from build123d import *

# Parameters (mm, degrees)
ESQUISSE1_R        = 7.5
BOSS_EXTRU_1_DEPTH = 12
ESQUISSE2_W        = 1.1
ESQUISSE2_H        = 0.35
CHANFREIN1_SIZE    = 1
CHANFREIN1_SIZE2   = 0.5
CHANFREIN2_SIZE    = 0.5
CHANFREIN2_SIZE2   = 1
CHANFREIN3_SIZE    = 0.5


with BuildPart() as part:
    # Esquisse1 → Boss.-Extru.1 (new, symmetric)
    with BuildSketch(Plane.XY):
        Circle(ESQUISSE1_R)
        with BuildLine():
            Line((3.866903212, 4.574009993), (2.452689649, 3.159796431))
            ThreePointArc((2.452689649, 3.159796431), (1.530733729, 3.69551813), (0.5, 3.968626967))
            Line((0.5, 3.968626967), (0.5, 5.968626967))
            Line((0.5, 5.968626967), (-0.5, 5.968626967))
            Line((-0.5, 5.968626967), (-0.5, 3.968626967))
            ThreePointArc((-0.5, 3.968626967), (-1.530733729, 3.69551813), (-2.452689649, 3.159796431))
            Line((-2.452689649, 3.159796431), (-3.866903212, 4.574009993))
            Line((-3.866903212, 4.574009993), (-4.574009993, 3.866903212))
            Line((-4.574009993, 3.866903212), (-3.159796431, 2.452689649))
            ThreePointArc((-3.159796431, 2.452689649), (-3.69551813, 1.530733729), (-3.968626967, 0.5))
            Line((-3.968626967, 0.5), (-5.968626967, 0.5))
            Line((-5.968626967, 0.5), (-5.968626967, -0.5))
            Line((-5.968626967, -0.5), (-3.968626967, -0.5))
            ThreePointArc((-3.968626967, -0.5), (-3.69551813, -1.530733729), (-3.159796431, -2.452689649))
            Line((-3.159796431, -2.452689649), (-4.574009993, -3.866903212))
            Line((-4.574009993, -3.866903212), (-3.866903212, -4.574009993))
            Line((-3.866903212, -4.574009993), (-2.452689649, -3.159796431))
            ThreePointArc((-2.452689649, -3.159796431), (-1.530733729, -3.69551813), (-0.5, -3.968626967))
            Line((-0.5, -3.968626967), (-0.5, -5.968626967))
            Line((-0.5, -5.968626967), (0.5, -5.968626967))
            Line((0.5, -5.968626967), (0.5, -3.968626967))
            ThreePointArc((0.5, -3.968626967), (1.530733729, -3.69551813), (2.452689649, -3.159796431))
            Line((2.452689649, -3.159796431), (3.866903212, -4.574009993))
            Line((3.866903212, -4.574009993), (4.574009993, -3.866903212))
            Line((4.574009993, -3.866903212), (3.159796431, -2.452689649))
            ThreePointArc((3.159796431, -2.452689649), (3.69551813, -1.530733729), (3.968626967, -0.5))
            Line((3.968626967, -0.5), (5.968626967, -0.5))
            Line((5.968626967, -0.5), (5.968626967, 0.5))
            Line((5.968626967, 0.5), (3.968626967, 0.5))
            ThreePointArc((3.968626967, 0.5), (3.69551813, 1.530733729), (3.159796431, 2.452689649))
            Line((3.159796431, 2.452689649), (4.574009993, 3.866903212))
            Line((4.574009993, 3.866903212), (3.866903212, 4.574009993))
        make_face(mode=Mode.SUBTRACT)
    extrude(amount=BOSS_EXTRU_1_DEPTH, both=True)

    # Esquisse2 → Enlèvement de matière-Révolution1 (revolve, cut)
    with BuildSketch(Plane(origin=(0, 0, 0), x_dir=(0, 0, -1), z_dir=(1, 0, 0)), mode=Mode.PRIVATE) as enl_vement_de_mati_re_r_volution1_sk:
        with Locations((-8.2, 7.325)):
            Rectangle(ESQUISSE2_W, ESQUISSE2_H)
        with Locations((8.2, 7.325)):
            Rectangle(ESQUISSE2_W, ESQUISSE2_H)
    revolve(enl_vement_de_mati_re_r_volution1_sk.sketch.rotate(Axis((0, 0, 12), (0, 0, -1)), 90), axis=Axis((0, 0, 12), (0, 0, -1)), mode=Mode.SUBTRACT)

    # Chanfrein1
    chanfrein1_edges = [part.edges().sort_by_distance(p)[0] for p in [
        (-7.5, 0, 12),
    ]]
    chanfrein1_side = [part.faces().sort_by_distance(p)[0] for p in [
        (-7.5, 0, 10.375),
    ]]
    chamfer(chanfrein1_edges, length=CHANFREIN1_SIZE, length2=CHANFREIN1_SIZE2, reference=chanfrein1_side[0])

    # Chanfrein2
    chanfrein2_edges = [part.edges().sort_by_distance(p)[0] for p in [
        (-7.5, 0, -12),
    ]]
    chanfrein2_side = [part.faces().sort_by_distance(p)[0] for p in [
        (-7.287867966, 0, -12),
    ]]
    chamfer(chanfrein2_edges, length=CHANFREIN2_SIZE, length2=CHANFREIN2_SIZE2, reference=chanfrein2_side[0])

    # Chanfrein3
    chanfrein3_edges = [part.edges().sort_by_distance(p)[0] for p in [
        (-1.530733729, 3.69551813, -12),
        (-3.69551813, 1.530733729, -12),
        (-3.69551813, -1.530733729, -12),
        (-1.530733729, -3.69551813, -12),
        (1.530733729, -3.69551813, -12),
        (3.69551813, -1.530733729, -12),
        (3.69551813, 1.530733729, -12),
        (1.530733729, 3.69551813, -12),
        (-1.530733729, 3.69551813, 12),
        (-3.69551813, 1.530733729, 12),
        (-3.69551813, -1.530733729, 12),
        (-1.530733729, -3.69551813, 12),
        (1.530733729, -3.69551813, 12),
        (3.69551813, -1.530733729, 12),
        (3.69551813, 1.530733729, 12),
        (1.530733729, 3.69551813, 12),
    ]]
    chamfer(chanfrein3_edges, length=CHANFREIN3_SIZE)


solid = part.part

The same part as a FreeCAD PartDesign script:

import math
import FreeCAD as App
import Part
import Sketcher

V = App.Vector


def edges_at(feature, points):
    """Names of the edges that pass closest to the given points."""
    edges = feature.Shape.Edges
    near = lambda p: min(range(len(edges)), key=lambda i: edges[i].distToShape(Part.Vertex(*p))[0])
    return sorted({f"Edge{near(p) + 1}" for p in points})


def add_polygon(sketch, points):
    """Adds a closed chain of lines whose ends are joined by coincident constraints."""
    first, n = sketch.GeometryCount, len(points)
    for a, b in zip(points, points[1:] + points[:1]):
        sketch.addGeometry(Part.LineSegment(App.Vector(*a, 0), App.Vector(*b, 0)), False)
    for i in range(n):
        sketch.addConstraint(Sketcher.Constraint("Coincident", first + i, 2, first + (i + 1) % n, 1))

doc = App.newDocument("Part")
body = doc.addObject("PartDesign::Body", "Body")

# Sketch on XY plane
sketch1 = body.newObject("Sketcher::SketchObject", "Sketch")
sketch1.AttachmentSupport = (doc.getObject("XY_Plane"), [""])
sketch1.MapMode = "FlatFace"
sketch1.addGeometry([
    Part.Circle(V(0, 0, 0), V(0, 0, 1), 7.5),  # 0
    Part.LineSegment(V(2.5, 3.2, 0), V(3.9, 4.6, 0)),  # 1
    Part.LineSegment(V(3.9, 4.6, 0), V(4.6, 3.9, 0)),  # 2
    Part.LineSegment(V(4.6, 3.9, 0), V(3.2, 2.5, 0)),  # 3
    Part.ArcOfCircle(Part.Circle(V(0, 0, 0), V(0, 0, 1), 4), math.radians(7), math.radians(38)),  # 4
    Part.LineSegment(V(4, 0.5, 0), V(6, 0.5, 0)),  # 5
    Part.LineSegment(V(6, 0.5, 0), V(6, -0.5, 0)),  # 6
    Part.LineSegment(V(6, -0.5, 0), V(4, -0.5, 0)),  # 7
    Part.ArcOfCircle(Part.Circle(V(0, 0, 0), V(0, 0, 1), 4), math.radians(-38), math.radians(-7)),  # 8
    Part.LineSegment(V(3.2, -2.5, 0), V(4.6, -3.9, 0)),  # 9
    Part.LineSegment(V(4.6, -3.9, 0), V(3.9, -4.6, 0)),  # 10
    Part.LineSegment(V(3.9, -4.6, 0), V(2.5, -3.2, 0)),  # 11
    Part.ArcOfCircle(Part.Circle(V(0, 0, 0), V(0, 0, 1), 4), math.radians(-83), math.radians(-52)),  # 12
    Part.LineSegment(V(0.5, -4, 0), V(0.5, -6, 0)),  # 13
    Part.LineSegment(V(0.5, -6, 0), V(-0.5, -6, 0)),  # 14
    Part.LineSegment(V(-0.5, -6, 0), V(-0.5, -4, 0)),  # 15
    Part.ArcOfCircle(Part.Circle(V(0, 0, 0), V(0, 0, 1), 4), math.radians(-128), math.radians(-97)),  # 16
    Part.LineSegment(V(-2.5, -3.2, 0), V(-3.9, -4.6, 0)),  # 17
    Part.LineSegment(V(-3.9, -4.6, 0), V(-4.6, -3.9, 0)),  # 18
    Part.LineSegment(V(-4.6, -3.9, 0), V(-3.2, -2.5, 0)),  # 19
    Part.ArcOfCircle(Part.Circle(V(0, 0, 0), V(0, 0, 1), 4), math.radians(-173), math.radians(-142)),  # 20
    Part.LineSegment(V(-4, -0.5, 0), V(-6, -0.5, 0)),  # 21
    Part.LineSegment(V(-6, -0.5, 0), V(-6, 0.5, 0)),  # 22
    Part.LineSegment(V(-6, 0.5, 0), V(-4, 0.5, 0)),  # 23
    Part.ArcOfCircle(Part.Circle(V(0, 0, 0), V(0, 0, 1), 4), math.radians(142), math.radians(173)),  # 24
    Part.LineSegment(V(-3.2, 2.5, 0), V(-4.6, 3.9, 0)),  # 25
    Part.LineSegment(V(-4.6, 3.9, 0), V(-3.9, 4.6, 0)),  # 26
    Part.LineSegment(V(-3.9, 4.6, 0), V(-2.5, 3.2, 0)),  # 27
    Part.ArcOfCircle(Part.Circle(V(0, 0, 0), V(0, 0, 1), 4), math.radians(97), math.radians(128)),  # 28
    Part.LineSegment(V(-0.5, 4, 0), V(-0.5, 6, 0)),  # 29
    Part.LineSegment(V(-0.5, 6, 0), V(0.5, 6, 0)),  # 30
    Part.LineSegment(V(0.5, 6, 0), V(0.5, 4, 0)),  # 31
    Part.ArcOfCircle(Part.Circle(V(0, 0, 0), V(0, 0, 1), 4), math.radians(52), math.radians(83)),  # 32
], False)
sketch1.addConstraint([
    Sketcher.Constraint("Coincident", 1, 2, 2, 1),
    Sketcher.Constraint("Coincident", 2, 2, 3, 1),
    Sketcher.Constraint("Coincident", 3, 2, 4, 2),
    Sketcher.Constraint("Coincident", 4, 1, 5, 1),
    Sketcher.Constraint("Coincident", 5, 2, 6, 1),
    Sketcher.Constraint("Coincident", 6, 2, 7, 1),
    Sketcher.Constraint("Coincident", 7, 2, 8, 2),
    Sketcher.Constraint("Coincident", 8, 1, 9, 1),
    Sketcher.Constraint("Coincident", 9, 2, 10, 1),
    Sketcher.Constraint("Coincident", 10, 2, 11, 1),
    Sketcher.Constraint("Coincident", 11, 2, 12, 2),
    Sketcher.Constraint("Coincident", 12, 1, 13, 1),
    Sketcher.Constraint("Coincident", 13, 2, 14, 1),
    Sketcher.Constraint("Coincident", 14, 2, 15, 1),
    Sketcher.Constraint("Coincident", 15, 2, 16, 2),
    Sketcher.Constraint("Coincident", 16, 1, 17, 1),
    Sketcher.Constraint("Coincident", 17, 2, 18, 1),
    Sketcher.Constraint("Coincident", 18, 2, 19, 1),
    Sketcher.Constraint("Coincident", 19, 2, 20, 2),
    Sketcher.Constraint("Coincident", 20, 1, 21, 1),
    Sketcher.Constraint("Coincident", 21, 2, 22, 1),
    Sketcher.Constraint("Coincident", 22, 2, 23, 1),
    Sketcher.Constraint("Coincident", 23, 2, 24, 2),
    Sketcher.Constraint("Coincident", 24, 1, 25, 1),
    Sketcher.Constraint("Coincident", 25, 2, 26, 1),
    Sketcher.Constraint("Coincident", 26, 2, 27, 1),
    Sketcher.Constraint("Coincident", 27, 2, 28, 2),
    Sketcher.Constraint("Coincident", 28, 1, 29, 1),
    Sketcher.Constraint("Coincident", 29, 2, 30, 1),
    Sketcher.Constraint("Coincident", 30, 2, 31, 1),
    Sketcher.Constraint("Coincident", 31, 2, 32, 2),
    Sketcher.Constraint("Coincident", 32, 1, 1, 1),
    Sketcher.Constraint("Horizontal", 5),
    Sketcher.Constraint("Vertical", 6),
    Sketcher.Constraint("Horizontal", 7),
    Sketcher.Constraint("Vertical", 13),
    Sketcher.Constraint("Horizontal", 14),
    Sketcher.Constraint("Vertical", 15),
    Sketcher.Constraint("Horizontal", 21),
    Sketcher.Constraint("Vertical", 22),
    Sketcher.Constraint("Horizontal", 23),
    Sketcher.Constraint("Vertical", 29),
    Sketcher.Constraint("Horizontal", 30),
    Sketcher.Constraint("Vertical", 31),
    Sketcher.Constraint("Coincident", 0, 3, -1, 1),
    Sketcher.Constraint("Coincident", 4, 3, -1, 1),
    Sketcher.Constraint("Coincident", 8, 3, -1, 1),
    Sketcher.Constraint("Coincident", 12, 3, -1, 1),
    Sketcher.Constraint("Coincident", 16, 3, -1, 1),
    Sketcher.Constraint("Coincident", 20, 3, -1, 1),
    Sketcher.Constraint("Coincident", 24, 3, -1, 1),
    Sketcher.Constraint("Coincident", 28, 3, -1, 1),
    Sketcher.Constraint("Coincident", 32, 3, -1, 1),
    Sketcher.Constraint("Equal", 4, 8),
    Sketcher.Constraint("Equal", 8, 12),
    Sketcher.Constraint("Equal", 12, 16),
    Sketcher.Constraint("Equal", 16, 20),
    Sketcher.Constraint("Equal", 20, 24),
    Sketcher.Constraint("Equal", 24, 28),
    Sketcher.Constraint("Equal", 28, 32),
    Sketcher.Constraint("Symmetric", 1, 2, 17, 2, -1, 1),
    Sketcher.Constraint("Symmetric", 2, 2, 18, 2, -1, 1),
    Sketcher.Constraint("Symmetric", 5, 2, 21, 2, -1, 1),
    Sketcher.Constraint("Symmetric", 9, 2, 25, 2, -1, 1),
    Sketcher.Constraint("Symmetric", 10, 2, 26, 2, -1, 1),
    Sketcher.Constraint("Symmetric", 13, 2, 29, 2, -1, 1),
    Sketcher.Constraint("Symmetric", 10, 2, 17, 2, -2),
    Sketcher.Constraint("Symmetric", 9, 2, 18, 2, -2),
    Sketcher.Constraint("Perpendicular", 1, 2),
    Sketcher.Constraint("Perpendicular", 2, 3),
    Sketcher.Constraint("Perpendicular", 3, 9),
    Sketcher.Constraint("Perpendicular", 9, 10),
    Sketcher.Constraint("Perpendicular", 10, 11),
    Sketcher.Constraint("Perpendicular", 11, 17),
    Sketcher.Constraint("Perpendicular", 18, 19),
    Sketcher.Constraint("Perpendicular", 19, 25),
    Sketcher.Constraint("Perpendicular", 26, 27),
    Sketcher.Constraint("Horizontal", 12, 1, 15, 2),
    Sketcher.Constraint("Horizontal", 7, 2, 20, 1),
    Sketcher.Constraint("Horizontal", 5, 2, 22, 2),
    Sketcher.Constraint("Horizontal", 28, 1, 31, 2),
    Sketcher.Constraint("Equal", 30, 6),
    Sketcher.Constraint("Equal", 23, 13),
    Sketcher.Constraint("Equal", 1, 3),
    Sketcher.Constraint("Diameter", 0, 15.0),
    Sketcher.Constraint("Radius", 4, 4.0),
    Sketcher.Constraint("DistanceX", 5, 1, 5, 2, 2.0),
    Sketcher.Constraint("DistanceX", 14, 2, 14, 1, 1.0),
    Sketcher.Constraint("Distance", 1, 2.0),
    Sketcher.Constraint("Distance", 2, 1.0),
])
pad1 = body.newObject("PartDesign::Pad", "Pad")
pad1.Profile = sketch1
pad1.Length = 24
pad1.Midplane = True

# Sketch on YZ plane
sketch2 = body.newObject("Sketcher::SketchObject", "Sketch001")
sketch2.AttachmentSupport = (doc.getObject("YZ_Plane"), [""])
sketch2.MapMode = "FlatFace"
add_polygon(sketch2, [(7.5, 8.75), (7.15, 8.75), (7.15, 7.65), (7.5, 7.65)])  # lines 0-3
add_polygon(sketch2, [(7.5, -7.65), (7.15, -7.65), (7.15, -8.75), (7.5, -8.75)])  # lines 4-7
sketch2.addConstraint([
    Sketcher.Constraint("Horizontal", 0),
    Sketcher.Constraint("Vertical", 1),
    Sketcher.Constraint("Horizontal", 2),
    Sketcher.Constraint("Vertical", 3),
    Sketcher.Constraint("Horizontal", 4),
    Sketcher.Constraint("Vertical", 5),
    Sketcher.Constraint("Horizontal", 6),
    Sketcher.Constraint("Vertical", 7),
    Sketcher.Constraint("Symmetric", 1, 2, 4, 2, -1),
    Sketcher.Constraint("Symmetric", 3, 2, 6, 2, -1),
    Sketcher.Constraint("DistanceY", 1, 2, 1, 1, 1.1),
    Sketcher.Constraint("DistanceX", 0, 2, 0, 1, 0.35),
    Sketcher.Constraint("DistanceX", -1, 1, 2, 2, 7.5),
    Sketcher.Constraint("DistanceY", 4, 2, 1, 2, 15.3),
])
groove = body.newObject("PartDesign::Groove", "Groove")
groove.Profile = sketch2
groove.ReferenceAxis = (sketch2, ["V_Axis"])
groove.Angle = 360
doc.recompute()

chamfer = body.newObject("PartDesign::Chamfer", "Chamfer")
chamfer.Base = (groove, edges_at(groove, [(-7.5, 0, 12)]))
chamfer.ChamferType = "Two distances"
chamfer.Size = 1
chamfer.Size2 = 0.5
chamfer.FlipDirection = True
doc.recompute()

chamfer2 = body.newObject("PartDesign::Chamfer", "Chamfer001")
chamfer2.Base = (chamfer, edges_at(chamfer, [(-7.5, 0, -12)]))
chamfer2.ChamferType = "Two distances"
chamfer2.Size = 0.5
chamfer2.Size2 = 1
doc.recompute()

chamfer3 = body.newObject("PartDesign::Chamfer", "Chamfer002")
chamfer3.Base = (chamfer2, edges_at(chamfer2, [
    (-1.531, 3.696, -12),
    (-3.696, 1.531, -12),
    (-3.696, -1.531, -12),
    (-1.531, -3.696, -12),
    (1.531, -3.696, -12),
    (3.696, -1.531, -12),
    (3.696, 1.531, -12),
    (1.531, 3.696, -12),
    (-1.531, 3.696, 12),
    (-3.696, 1.531, 12),
    (-3.696, -1.531, 12),
    (-1.531, -3.696, 12),
    (1.531, -3.696, 12),
    (3.696, -1.531, 12),
    (3.696, 1.531, 12),
    (1.531, 3.696, 12),
]))
chamfer3.Size = 0.5

doc.recompute()
